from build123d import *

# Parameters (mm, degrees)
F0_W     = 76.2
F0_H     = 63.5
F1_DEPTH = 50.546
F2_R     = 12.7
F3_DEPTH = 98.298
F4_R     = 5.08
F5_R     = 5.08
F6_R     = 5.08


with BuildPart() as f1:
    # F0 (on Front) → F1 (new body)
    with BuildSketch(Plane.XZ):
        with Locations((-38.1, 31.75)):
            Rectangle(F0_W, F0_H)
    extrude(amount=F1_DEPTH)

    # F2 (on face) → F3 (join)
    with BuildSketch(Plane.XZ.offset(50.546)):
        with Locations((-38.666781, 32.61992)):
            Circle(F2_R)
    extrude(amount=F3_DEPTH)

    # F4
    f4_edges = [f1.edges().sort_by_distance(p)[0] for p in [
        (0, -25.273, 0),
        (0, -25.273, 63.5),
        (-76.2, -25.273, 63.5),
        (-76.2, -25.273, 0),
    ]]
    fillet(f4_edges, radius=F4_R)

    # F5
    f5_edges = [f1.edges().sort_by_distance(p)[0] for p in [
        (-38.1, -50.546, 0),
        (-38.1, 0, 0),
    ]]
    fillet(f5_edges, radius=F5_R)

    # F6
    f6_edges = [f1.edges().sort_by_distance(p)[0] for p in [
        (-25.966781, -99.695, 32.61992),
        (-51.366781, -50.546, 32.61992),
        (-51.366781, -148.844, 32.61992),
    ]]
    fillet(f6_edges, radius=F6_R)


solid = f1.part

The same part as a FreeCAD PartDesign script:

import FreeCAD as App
import Part
import Sketcher

V = App.Vector
Q = App.Units.Quantity


def edges_at(feature, points):
    """Names of the edges that pass closest to the given points."""
    edges = feature.Shape.Edges
    near = lambda p: min(range(len(edges)), key=lambda i: edges[i].distToShape(Part.Vertex(*p))[0])
    return sorted({f"Edge{near(p) + 1}" for p in points})

doc = App.newDocument("Part")
body = doc.addObject("PartDesign::Body", "Body")

# Sketch on XZ plane
sketch1 = body.newObject("Sketcher::SketchObject", "Sketch")
sketch1.AttachmentSupport = (doc.getObject("XZ_Plane"), [""])
sketch1.MapMode = "FlatFace"
sketch1.addGeometry(Part.LineSegment(V(-76.2, 63.5, 0), V(-76.2, 0, 0)), False)
sketch1.addGeometry(Part.LineSegment(V(-76.2, 0, 0), V(0, 0, 0)), False)
sketch1.addGeometry(Part.LineSegment(V(0, 0, 0), V(0, 63.5, 0)), False)
sketch1.addGeometry(Part.LineSegment(V(0, 63.5, 0), V(-76.2, 63.5, 0)), False)
sketch1.addConstraint(Sketcher.Constraint("Coincident", 0, 2, 1, 1))
sketch1.addConstraint(Sketcher.Constraint("Coincident", 1, 2, 2, 1))
sketch1.addConstraint(Sketcher.Constraint("Coincident", 2, 2, 3, 1))
sketch1.addConstraint(Sketcher.Constraint("Coincident", 3, 2, 0, 1))
sketch1.addConstraint(Sketcher.Constraint("Vertical", 0))
sketch1.addConstraint(Sketcher.Constraint("Horizontal", 1))
sketch1.addConstraint(Sketcher.Constraint("Vertical", 2))
sketch1.addConstraint(Sketcher.Constraint("Horizontal", 3))
sketch1.addConstraint(Sketcher.Constraint("Coincident", 1, 2, -1, 1))
sketch1.addConstraint(Sketcher.Constraint("DistanceX", 1, 1, 1, 2, Q("3 in")))
sketch1.addConstraint(Sketcher.Constraint("DistanceY", 0, 2, 0, 1, Q("2.5 in")))
pad1 = body.newObject("PartDesign::Pad", "Pad")
pad1.Profile = sketch1
pad1.Length = Q("1.99 in")

# Sketch on XZ plane
sketch2 = body.newObject("Sketcher::SketchObject", "Sketch001")
sketch2.AttachmentSupport = (doc.getObject("XZ_Plane"), [""])
sketch2.MapMode = "FlatFace"
sketch2.AttachmentOffset = App.Placement(V(0, 0, 1.99 * 25.4), App.Rotation())
sketch2.addGeometry(Part.Circle(V(-38.666781, 32.61992, 0), V(0, 0, 1), 12.7), False)
sketch2.addConstraint(Sketcher.Constraint("Diameter", 0, Q("1 in")))
sketch2.addConstraint(Sketcher.Constraint("DistanceX", 0, 3, -1, 1, 38.666781))
sketch2.addConstraint(Sketcher.Constraint("DistanceY", -1, 1, 0, 3, 32.61992))
pad2 = body.newObject("PartDesign::Pad", "Pad001")
pad2.Profile = sketch2
pad2.Length = Q("3.87 in")
doc.recompute()

fillet = body.newObject("PartDesign::Fillet", "Fillet")
fillet.Base = (pad2, edges_at(pad2, [
    (0, -25.273, 0),
    (0, -25.273, 63.5),
    (-76.2, -25.273, 63.5),
    (-76.2, -25.273, 0),
]))
fillet.Radius = Q("0.2 in")
doc.recompute()

fillet2 = body.newObject("PartDesign::Fillet", "Fillet001")
fillet2.Base = (fillet, edges_at(fillet, [(-38.1, -50.546, 0), (-38.1, 0, 0)]))
fillet2.Radius = Q("0.2 in")
doc.recompute()

fillet3 = body.newObject("PartDesign::Fillet", "Fillet002")
fillet3.Base = (fillet2, edges_at(fillet2, [(-25.967, -99.695, 32.62), (-51.367, -50.546, 32.62), (-51.367, -148.844, 32.62)]))
fillet3.Radius = Q("0.2 in")

doc.recompute()
